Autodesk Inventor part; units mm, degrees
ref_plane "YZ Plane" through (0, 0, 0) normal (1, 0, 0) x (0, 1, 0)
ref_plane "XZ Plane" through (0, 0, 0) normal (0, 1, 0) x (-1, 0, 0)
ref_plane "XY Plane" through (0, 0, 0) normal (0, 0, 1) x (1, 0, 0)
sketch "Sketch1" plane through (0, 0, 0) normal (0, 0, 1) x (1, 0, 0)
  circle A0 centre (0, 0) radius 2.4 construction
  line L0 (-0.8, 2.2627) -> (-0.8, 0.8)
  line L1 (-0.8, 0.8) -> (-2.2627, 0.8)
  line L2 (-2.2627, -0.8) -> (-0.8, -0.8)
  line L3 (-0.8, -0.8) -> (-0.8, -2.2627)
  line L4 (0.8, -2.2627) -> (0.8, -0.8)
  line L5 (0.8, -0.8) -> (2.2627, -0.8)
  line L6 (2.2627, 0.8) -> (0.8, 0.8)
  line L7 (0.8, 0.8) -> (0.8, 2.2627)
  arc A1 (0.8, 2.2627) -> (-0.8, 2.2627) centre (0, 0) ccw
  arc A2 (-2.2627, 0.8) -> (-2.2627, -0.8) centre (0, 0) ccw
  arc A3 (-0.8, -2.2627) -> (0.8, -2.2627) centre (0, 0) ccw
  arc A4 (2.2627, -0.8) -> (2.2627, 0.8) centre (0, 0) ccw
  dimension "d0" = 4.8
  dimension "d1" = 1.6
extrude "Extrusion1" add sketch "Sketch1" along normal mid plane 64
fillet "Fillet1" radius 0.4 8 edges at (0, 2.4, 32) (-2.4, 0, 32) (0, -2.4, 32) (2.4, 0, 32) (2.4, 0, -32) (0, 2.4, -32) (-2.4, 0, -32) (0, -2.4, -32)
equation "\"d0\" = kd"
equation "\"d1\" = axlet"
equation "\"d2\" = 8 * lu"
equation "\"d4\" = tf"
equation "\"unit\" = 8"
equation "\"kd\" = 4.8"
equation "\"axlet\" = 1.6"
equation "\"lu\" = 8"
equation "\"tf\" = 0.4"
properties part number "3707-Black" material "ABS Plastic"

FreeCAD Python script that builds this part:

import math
import FreeCAD as App
import Part
import Sketcher
from FreeCAD import Vector
Q = App.Units.Quantity


def edges_at(feature, points):
    """Names of the edges that pass closest to the given points."""
    edges = feature.Shape.Edges
    near = lambda p: min(range(len(edges)), key=lambda i: edges[i].distToShape(Part.Vertex(*p))[0])
    return sorted({f"Edge{near(p) + 1}" for p in points})

doc = App.newDocument("Part")
body = doc.addObject("PartDesign::Body", "Body")

sketch1 = doc.addObject("Sketcher::SketchObject", "Sketch")
body.addObject(sketch1)
sketch1.AttachmentSupport = (doc.XY_Plane, [""])
sketch1.MapMode = "FlatFace"
sketch1.addGeometry(Part.ArcOfCircle(Part.Circle(Vector(0, 0, 0), Vector(0, 0, 1), 2.4), math.radians(71), math.radians(109)), False)
sketch1.addGeometry(Part.LineSegment(Vector(-0.8, 2.3, 0), Vector(-0.8, 0.8, 0)), False)
sketch1.addGeometry(Part.LineSegment(Vector(-0.8, 0.8, 0), Vector(-2.3, 0.8, 0)), False)
sketch1.addGeometry(Part.ArcOfCircle(Part.Circle(Vector(0, 0, 0), Vector(0, 0, 1), 2.4), math.radians(161), math.radians(199)), False)
sketch1.addGeometry(Part.LineSegment(Vector(-2.3, -0.8, 0), Vector(-0.8, -0.8, 0)), False)
sketch1.addGeometry(Part.LineSegment(Vector(-0.8, -0.8, 0), Vector(-0.8, -2.3, 0)), False)
sketch1.addGeometry(Part.ArcOfCircle(Part.Circle(Vector(0, 0, 0), Vector(0, 0, 1), 2.4), math.radians(-109), math.radians(-71)), False)
sketch1.addGeometry(Part.LineSegment(Vector(0.8, -2.3, 0), Vector(0.8, -0.8, 0)), False)
sketch1.addGeometry(Part.LineSegment(Vector(0.8, -0.8, 0), Vector(2.3, -0.8, 0)), False)
sketch1.addGeometry(Part.ArcOfCircle(Part.Circle(Vector(0, 0, 0), Vector(0, 0, 1), 2.4), math.radians(-19), math.radians(19)), False)
sketch1.addGeometry(Part.LineSegment(Vector(2.3, 0.8, 0), Vector(0.8, 0.8, 0)), False)
sketch1.addGeometry(Part.LineSegment(Vector(0.8, 0.8, 0), Vector(0.8, 2.3, 0)), False)
sketch1.addConstraint(Sketcher.Constraint("Coincident", 0, 2, 1, 1))
sketch1.addConstraint(Sketcher.Constraint("Coincident", 1, 2, 2, 1))
sketch1.addConstraint(Sketcher.Constraint("Coincident", 2, 2, 3, 1))
sketch1.addConstraint(Sketcher.Constraint("Coincident", 3, 2, 4, 1))
sketch1.addConstraint(Sketcher.Constraint("Coincident", 4, 2, 5, 1))
sketch1.addConstraint(Sketcher.Constraint("Coincident", 5, 2, 6, 1))
sketch1.addConstraint(Sketcher.Constraint("Coincident", 6, 2, 7, 1))
sketch1.addConstraint(Sketcher.Constraint("Coincident", 7, 2, 8, 1))
sketch1.addConstraint(Sketcher.Constraint("Coincident", 8, 2, 9, 1))
sketch1.addConstraint(Sketcher.Constraint("Coincident", 9, 2, 10, 1))
sketch1.addConstraint(Sketcher.Constraint("Coincident", 10, 2, 11, 1))
sketch1.addConstraint(Sketcher.Constraint("Coincident", 11, 2, 0, 1))
sketch1.addConstraint(Sketcher.Constraint("Vertical", 1))
sketch1.addConstraint(Sketcher.Constraint("Horizontal", 2))
sketch1.addConstraint(Sketcher.Constraint("Horizontal", 4))
sketch1.addConstraint(Sketcher.Constraint("Vertical", 5))
sketch1.addConstraint(Sketcher.Constraint("Vertical", 7))
sketch1.addConstraint(Sketcher.Constraint("Horizontal", 8))
sketch1.addConstraint(Sketcher.Constraint("Horizontal", 10))
sketch1.addConstraint(Sketcher.Constraint("Vertical", 11))
sketch1.addConstraint(Sketcher.Constraint("Coincident", 0, 3, -1, 1))
sketch1.addConstraint(Sketcher.Constraint("Coincident", 3, 3, -1, 1))
sketch1.addConstraint(Sketcher.Constraint("Coincident", 6, 3, -1, 1))
sketch1.addConstraint(Sketcher.Constraint("Coincident", 9, 3, -1, 1))
sketch1.addConstraint(Sketcher.Constraint("Equal", 0, 3))
sketch1.addConstraint(Sketcher.Constraint("Equal", 3, 6))
sketch1.addConstraint(Sketcher.Constraint("Equal", 6, 9))
sketch1.addConstraint(Sketcher.Constraint("Symmetric", 1, 2, 7, 2, -1, 1))
sketch1.addConstraint(Sketcher.Constraint("Symmetric", 4, 2, 10, 2, -1, 1))
sketch1.addConstraint(Sketcher.Constraint("Symmetric", 4, 2, 7, 2, -2))
sketch1.addConstraint(Sketcher.Constraint("Equal", 10, 1))
sketch1.addConstraint(Sketcher.Constraint("Radius", 0, Q("2.4 mm")))
sketch1.addConstraint(Sketcher.Constraint("DistanceY", 3, 2, 2, 2, Q("1.6 mm")))
pad1 = doc.addObject("PartDesign::Pad", "Pad")
body.addObject(pad1)
pad1.Profile = sketch1
pad1.Length = 64
pad1.Midplane = True
doc.recompute()

fillet = doc.addObject("PartDesign::Fillet", "Fillet")
body.addObject(fillet)
fillet.Base = (pad1, edges_at(pad1, [
    (0, 2.4, 32),
    (-2.4, 0, 32),
    (0, -2.4, 32),
    (2.4, 0, 32),
    (2.4, 0, -32),
    (0, 2.4, -32),
    (-2.4, 0, -32),
    (0, -2.4, -32),
]))
fillet.Radius = 0.4

doc.recompute()
